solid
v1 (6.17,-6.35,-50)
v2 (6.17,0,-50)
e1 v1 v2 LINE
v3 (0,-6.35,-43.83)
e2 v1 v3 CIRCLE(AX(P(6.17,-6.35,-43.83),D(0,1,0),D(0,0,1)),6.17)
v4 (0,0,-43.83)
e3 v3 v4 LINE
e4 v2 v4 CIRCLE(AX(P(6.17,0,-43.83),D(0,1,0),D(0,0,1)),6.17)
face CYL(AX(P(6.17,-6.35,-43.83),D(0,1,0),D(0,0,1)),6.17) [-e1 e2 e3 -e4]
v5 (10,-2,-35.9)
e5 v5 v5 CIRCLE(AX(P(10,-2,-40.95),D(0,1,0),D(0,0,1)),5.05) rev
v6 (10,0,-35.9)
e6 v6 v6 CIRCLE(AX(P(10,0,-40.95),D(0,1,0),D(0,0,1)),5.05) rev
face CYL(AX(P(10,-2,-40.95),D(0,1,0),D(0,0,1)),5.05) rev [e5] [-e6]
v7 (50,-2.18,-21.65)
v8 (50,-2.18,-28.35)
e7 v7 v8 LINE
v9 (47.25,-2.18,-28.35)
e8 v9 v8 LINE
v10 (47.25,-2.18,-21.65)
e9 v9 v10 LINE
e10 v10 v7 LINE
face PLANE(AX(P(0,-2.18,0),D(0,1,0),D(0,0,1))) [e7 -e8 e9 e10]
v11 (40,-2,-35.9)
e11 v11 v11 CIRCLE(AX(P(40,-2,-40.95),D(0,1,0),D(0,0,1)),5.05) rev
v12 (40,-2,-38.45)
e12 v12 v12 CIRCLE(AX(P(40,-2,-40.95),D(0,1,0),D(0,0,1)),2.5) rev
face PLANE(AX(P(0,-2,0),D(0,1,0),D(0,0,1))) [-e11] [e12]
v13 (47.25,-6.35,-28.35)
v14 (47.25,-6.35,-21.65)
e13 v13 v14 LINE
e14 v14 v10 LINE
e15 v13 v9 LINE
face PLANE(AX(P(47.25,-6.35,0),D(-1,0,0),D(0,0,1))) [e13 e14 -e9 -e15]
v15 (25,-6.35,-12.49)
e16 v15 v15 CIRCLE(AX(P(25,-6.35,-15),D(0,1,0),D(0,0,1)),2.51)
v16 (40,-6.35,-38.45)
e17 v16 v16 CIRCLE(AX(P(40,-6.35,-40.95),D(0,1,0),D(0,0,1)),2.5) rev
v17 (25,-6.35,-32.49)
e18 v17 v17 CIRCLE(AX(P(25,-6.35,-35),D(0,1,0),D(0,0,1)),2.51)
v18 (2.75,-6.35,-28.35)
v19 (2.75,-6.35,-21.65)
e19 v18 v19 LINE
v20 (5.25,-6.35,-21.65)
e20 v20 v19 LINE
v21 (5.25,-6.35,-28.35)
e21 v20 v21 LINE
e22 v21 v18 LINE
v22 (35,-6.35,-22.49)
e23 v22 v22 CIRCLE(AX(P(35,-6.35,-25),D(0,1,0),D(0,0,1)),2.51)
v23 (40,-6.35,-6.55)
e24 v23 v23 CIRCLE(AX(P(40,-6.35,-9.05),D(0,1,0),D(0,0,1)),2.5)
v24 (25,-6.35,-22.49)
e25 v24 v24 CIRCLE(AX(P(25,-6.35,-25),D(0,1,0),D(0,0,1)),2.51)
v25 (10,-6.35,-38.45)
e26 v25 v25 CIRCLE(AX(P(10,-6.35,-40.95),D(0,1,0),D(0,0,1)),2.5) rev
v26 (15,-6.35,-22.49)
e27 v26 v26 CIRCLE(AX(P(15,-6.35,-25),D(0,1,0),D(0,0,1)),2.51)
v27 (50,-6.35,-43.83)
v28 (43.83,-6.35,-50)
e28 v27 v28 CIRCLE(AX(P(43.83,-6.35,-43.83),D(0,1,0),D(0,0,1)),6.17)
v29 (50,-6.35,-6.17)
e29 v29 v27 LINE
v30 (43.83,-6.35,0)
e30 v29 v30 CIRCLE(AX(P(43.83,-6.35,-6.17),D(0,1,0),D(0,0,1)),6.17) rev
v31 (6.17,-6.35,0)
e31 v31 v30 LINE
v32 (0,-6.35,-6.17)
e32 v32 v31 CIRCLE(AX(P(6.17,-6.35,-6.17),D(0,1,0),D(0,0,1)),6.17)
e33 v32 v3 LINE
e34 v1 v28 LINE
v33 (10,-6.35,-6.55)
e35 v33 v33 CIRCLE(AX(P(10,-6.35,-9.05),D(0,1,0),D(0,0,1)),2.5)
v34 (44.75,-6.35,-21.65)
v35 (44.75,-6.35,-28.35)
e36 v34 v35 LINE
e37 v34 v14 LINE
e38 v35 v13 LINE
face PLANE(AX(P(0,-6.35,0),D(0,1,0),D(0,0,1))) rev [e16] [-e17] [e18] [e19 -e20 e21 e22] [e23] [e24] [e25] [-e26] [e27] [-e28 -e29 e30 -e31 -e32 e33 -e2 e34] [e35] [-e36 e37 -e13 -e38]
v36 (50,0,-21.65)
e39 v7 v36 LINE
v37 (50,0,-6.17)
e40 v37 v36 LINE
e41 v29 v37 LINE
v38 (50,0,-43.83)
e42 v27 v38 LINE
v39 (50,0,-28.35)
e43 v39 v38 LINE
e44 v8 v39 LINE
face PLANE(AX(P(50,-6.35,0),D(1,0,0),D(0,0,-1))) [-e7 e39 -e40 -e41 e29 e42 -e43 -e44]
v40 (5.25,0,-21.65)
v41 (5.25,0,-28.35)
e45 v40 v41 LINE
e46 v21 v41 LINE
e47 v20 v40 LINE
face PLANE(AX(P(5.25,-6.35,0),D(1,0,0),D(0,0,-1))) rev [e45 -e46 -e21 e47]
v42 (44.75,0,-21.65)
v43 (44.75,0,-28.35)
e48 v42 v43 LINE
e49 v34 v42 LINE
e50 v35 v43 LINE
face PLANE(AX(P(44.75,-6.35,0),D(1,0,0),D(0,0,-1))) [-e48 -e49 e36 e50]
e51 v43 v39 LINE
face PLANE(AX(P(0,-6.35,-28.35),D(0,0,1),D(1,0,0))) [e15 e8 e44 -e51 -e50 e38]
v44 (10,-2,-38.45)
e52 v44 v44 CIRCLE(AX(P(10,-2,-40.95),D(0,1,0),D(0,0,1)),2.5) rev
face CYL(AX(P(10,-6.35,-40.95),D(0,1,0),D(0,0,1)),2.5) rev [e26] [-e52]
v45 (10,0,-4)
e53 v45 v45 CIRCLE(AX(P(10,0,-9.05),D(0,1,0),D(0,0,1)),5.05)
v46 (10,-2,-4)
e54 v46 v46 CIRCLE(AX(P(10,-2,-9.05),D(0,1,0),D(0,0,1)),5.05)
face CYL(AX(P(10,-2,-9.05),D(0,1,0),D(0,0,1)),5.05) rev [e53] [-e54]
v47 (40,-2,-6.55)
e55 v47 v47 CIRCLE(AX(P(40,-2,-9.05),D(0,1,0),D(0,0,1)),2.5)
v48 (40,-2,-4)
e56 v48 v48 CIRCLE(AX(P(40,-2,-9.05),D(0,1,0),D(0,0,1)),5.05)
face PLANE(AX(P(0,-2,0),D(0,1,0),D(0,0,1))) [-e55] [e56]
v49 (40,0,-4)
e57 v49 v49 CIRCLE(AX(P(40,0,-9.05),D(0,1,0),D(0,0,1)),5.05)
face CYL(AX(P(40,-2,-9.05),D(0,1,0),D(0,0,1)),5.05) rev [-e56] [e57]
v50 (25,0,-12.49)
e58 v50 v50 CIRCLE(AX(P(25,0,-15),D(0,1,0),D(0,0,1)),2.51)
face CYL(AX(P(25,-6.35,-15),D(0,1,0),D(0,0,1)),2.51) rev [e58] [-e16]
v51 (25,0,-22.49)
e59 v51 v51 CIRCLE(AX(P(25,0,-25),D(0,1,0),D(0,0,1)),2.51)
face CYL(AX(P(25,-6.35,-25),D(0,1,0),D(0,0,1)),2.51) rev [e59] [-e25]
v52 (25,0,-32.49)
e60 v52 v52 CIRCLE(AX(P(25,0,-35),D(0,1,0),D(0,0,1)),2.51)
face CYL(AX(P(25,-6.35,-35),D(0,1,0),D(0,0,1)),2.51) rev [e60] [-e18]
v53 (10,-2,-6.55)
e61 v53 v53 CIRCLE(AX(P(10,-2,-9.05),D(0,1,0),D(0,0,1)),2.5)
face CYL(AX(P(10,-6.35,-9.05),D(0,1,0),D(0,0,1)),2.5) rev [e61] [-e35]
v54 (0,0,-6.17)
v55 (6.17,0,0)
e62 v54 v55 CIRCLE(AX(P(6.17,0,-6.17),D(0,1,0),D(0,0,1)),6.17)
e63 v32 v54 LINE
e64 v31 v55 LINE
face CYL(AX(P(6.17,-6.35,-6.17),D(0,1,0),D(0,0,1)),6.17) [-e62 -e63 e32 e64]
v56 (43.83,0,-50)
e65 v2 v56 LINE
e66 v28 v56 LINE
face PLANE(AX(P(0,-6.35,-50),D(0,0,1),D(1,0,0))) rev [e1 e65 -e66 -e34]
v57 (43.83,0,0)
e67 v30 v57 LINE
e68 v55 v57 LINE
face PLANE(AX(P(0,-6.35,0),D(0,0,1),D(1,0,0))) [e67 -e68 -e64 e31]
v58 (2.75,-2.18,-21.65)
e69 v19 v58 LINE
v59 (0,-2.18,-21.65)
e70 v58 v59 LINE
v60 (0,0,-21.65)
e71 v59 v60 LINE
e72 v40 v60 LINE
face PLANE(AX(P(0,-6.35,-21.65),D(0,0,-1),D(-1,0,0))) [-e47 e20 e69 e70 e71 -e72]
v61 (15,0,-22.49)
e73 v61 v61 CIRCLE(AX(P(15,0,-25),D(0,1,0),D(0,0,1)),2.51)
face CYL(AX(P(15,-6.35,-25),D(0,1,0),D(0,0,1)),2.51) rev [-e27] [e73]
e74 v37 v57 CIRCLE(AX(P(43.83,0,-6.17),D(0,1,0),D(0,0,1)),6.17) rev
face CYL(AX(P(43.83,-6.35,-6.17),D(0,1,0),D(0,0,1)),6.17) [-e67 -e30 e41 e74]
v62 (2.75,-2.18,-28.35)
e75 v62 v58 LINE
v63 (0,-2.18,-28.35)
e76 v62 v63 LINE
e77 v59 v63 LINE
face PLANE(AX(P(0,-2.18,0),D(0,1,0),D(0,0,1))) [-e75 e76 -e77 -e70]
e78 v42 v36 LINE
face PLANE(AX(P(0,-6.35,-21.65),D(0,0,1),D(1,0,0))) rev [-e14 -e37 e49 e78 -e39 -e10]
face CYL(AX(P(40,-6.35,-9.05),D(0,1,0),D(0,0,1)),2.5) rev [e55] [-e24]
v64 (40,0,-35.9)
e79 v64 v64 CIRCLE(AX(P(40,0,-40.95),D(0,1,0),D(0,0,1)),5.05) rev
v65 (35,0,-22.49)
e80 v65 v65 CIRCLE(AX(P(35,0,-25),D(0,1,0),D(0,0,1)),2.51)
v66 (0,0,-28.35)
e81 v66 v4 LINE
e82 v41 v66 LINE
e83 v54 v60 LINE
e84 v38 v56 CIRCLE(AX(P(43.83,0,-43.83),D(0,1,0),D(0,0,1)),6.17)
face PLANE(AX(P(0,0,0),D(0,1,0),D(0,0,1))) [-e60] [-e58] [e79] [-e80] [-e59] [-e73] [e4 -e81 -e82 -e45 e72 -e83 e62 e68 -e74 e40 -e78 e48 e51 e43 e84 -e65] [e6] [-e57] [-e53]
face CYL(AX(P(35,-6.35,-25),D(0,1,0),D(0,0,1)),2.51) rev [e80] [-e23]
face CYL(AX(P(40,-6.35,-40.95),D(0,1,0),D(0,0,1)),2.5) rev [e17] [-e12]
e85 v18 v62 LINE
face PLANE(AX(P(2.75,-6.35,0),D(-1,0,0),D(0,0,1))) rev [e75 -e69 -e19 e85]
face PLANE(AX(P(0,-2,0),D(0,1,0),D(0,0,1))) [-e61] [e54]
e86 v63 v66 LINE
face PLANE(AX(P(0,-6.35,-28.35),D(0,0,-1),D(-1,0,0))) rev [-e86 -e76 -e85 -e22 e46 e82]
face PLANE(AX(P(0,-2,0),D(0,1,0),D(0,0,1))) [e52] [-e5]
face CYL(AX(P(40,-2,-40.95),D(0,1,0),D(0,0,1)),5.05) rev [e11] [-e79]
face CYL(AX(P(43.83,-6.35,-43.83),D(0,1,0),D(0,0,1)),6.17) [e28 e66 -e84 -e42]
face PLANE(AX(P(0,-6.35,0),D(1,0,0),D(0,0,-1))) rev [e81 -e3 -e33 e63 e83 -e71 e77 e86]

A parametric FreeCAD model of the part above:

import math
import FreeCAD as App
import Part
import Sketcher

V = App.Vector
Q = App.Units.Quantity


def add_polygon(sketch, points):
    """Adds a closed chain of lines whose ends are joined by coincident constraints."""
    first, n = sketch.GeometryCount, len(points)
    for a, b in zip(points, points[1:] + points[:1]):
        sketch.addGeometry(Part.LineSegment(App.Vector(*a, 0), App.Vector(*b, 0)), False)
    for i in range(n):
        sketch.addConstraint(Sketcher.Constraint("Coincident", first + i, 2, first + (i + 1) % n, 1))

doc = App.newDocument("Part")
body = doc.addObject("PartDesign::Body", "Body")

# Sketch on XZ plane
sketch1 = body.newObject("Sketcher::SketchObject", "Sketch")
sketch1.AttachmentSupport = (doc.getObject("XZ_Plane"), [""])
sketch1.MapMode = "FlatFace"
sketch1.addGeometry(Part.ArcOfCircle(Part.Circle(V(6.17, -6.17, 0), V(0, 0, 1), 6.17), math.radians(90), math.radians(180)), False)  # 0
sketch1.addGeometry(Part.LineSegment(V(6.17, 0, 0), V(43.83, 0, 0)), False)  # 1
sketch1.addGeometry(Part.ArcOfCircle(Part.Circle(V(43.83, -6.17, 0), V(0, 0, 1), 6.17), math.radians(0), math.radians(90)), False)  # 2
sketch1.addGeometry(Part.LineSegment(V(50, -6.17, 0), V(50, -43.83, 0)), False)  # 3
sketch1.addGeometry(Part.ArcOfCircle(Part.Circle(V(43.83, -43.83, 0), V(0, 0, 1), 6.17), math.radians(-90), math.radians(0)), False)  # 4
sketch1.addGeometry(Part.LineSegment(V(43.83, -50, 0), V(6.17, -50, 0)), False)  # 5
sketch1.addGeometry(Part.ArcOfCircle(Part.Circle(V(6.17, -43.83, 0), V(0, 0, 1), 6.17), math.radians(180), math.radians(270)), False)  # 6
sketch1.addGeometry(Part.LineSegment(V(0, -43.83, 0), V(0, -6.17, 0)), False)  # 7
add_polygon(sketch1, [(5.25, -21.65), (2.75, -21.65), (2.75, -28.35), (5.25, -28.35)])  # lines 8-11
add_polygon(sketch1, [(47.25, -21.65), (44.75, -21.65), (44.75, -28.35), (47.25, -28.35)])  # lines 12-15
sketch1.addGeometry(Part.Circle(V(25, -15, 0), V(0, 0, 1), 2.51), False)  # 16
sketch1.addGeometry(Part.Circle(V(15, -25, 0), V(0, 0, 1), 2.51), False)  # 17
sketch1.addGeometry(Part.Circle(V(25, -25, 0), V(0, 0, 1), 2.51), False)  # 18
sketch1.addGeometry(Part.Circle(V(35, -25, 0), V(0, 0, 1), 2.51), False)  # 19
sketch1.addGeometry(Part.Circle(V(25, -35, 0), V(0, 0, 1), 2.51), False)  # 20
sketch1.addGeometry(Part.Circle(V(10, -9.05, 0), V(0, 0, 1), 2.5), False)  # 21
sketch1.addGeometry(Part.Circle(V(40, -9.05, 0), V(0, 0, 1), 2.5), False)  # 22
sketch1.addGeometry(Part.Circle(V(10, -40.95, 0), V(0, 0, 1), 2.5), False)  # 23
sketch1.addGeometry(Part.Circle(V(40, -40.95, 0), V(0, 0, 1), 2.5), False)  # 24
sketch1.addConstraint([
    Sketcher.Constraint("Tangent", 0, 1, 1, 1),
    Sketcher.Constraint("Tangent", 1, 2, 2, 2),
    Sketcher.Constraint("Tangent", 2, 1, 3, 1),
    Sketcher.Constraint("Tangent", 3, 2, 4, 2),
    Sketcher.Constraint("Tangent", 4, 1, 5, 1),
    Sketcher.Constraint("Tangent", 5, 2, 6, 2),
    Sketcher.Constraint("Tangent", 6, 1, 7, 1),
    Sketcher.Constraint("Tangent", 7, 2, 0, 2),
    Sketcher.Constraint("Horizontal", 1),
    Sketcher.Constraint("Vertical", 3),
    Sketcher.Constraint("Horizontal", 5),
    Sketcher.Constraint("Vertical", 7),
    Sketcher.Constraint("Horizontal", 8),
    Sketcher.Constraint("Vertical", 9),
    Sketcher.Constraint("Horizontal", 10),
    Sketcher.Constraint("Vertical", 11),
    Sketcher.Constraint("Horizontal", 12),
    Sketcher.Constraint("Vertical", 13),
    Sketcher.Constraint("Horizontal", 14),
    Sketcher.Constraint("Vertical", 15),
    Sketcher.Constraint("Equal", 0, 2),
    Sketcher.Constraint("Equal", 2, 4),
    Sketcher.Constraint("Equal", 4, 6),
    Sketcher.Constraint("Equal", 16, 17),
    Sketcher.Constraint("Equal", 17, 18),
    Sketcher.Constraint("Equal", 18, 19),
    Sketcher.Constraint("Equal", 19, 20),
    Sketcher.Constraint("Equal", 21, 22),
    Sketcher.Constraint("Equal", 22, 23),
    Sketcher.Constraint("Equal", 23, 24),
    Sketcher.Constraint("PointOnObject", 0, 1, -1),
    Sketcher.Constraint("PointOnObject", 6, 1, -2),
    Sketcher.Constraint("Horizontal", 17, 3, 18, 3),
    Sketcher.Constraint("Horizontal", 18, 3, 19, 3),
    Sketcher.Constraint("Horizontal", 21, 3, 22, 3),
    Sketcher.Constraint("Horizontal", 23, 3, 24, 3),
    Sketcher.Constraint("Horizontal", 11, 2, 12, 2),
    Sketcher.Constraint("Horizontal", 10, 2, 13, 2),
    Sketcher.Constraint("Vertical", 16, 3, 18, 3),
    Sketcher.Constraint("Vertical", 18, 3, 20, 3),
    Sketcher.Constraint("Vertical", 21, 3, 23, 3),
    Sketcher.Constraint("Vertical", 22, 3, 24, 3),
    Sketcher.Constraint("Equal", 10, 12),
    Sketcher.Constraint("Equal", 5, 3),
    Sketcher.Constraint("Diameter", 21, Q("5 mm")),
    Sketcher.Constraint("Diameter", 16, Q("5.02 mm")),
    Sketcher.Constraint("Radius", 0, Q("6.17 mm")),
    Sketcher.Constraint("DistanceX", 8, 2, 8, 1, Q("2.5 mm")),
    Sketcher.Constraint("DistanceY", 9, 2, 9, 1, Q("6.7 mm")),
    Sketcher.Constraint("DistanceX", -1, 1, 16, 3, Q("25 mm")),
    Sketcher.Constraint("DistanceY", 16, 3, -1, 1, Q("15 mm")),
    Sketcher.Constraint("DistanceX", -1, 1, 17, 3, Q("15 mm")),
    Sketcher.Constraint("DistanceY", 17, 3, -1, 1, Q("25 mm")),
    Sketcher.Constraint("DistanceX", -1, 1, 19, 3, Q("35 mm")),
    Sketcher.Constraint("DistanceY", 20, 3, -1, 1, Q("35 mm")),
    Sketcher.Constraint("DistanceX", -1, 1, 21, 3, Q("10 mm")),
    Sketcher.Constraint("DistanceX", -1, 1, 22, 3, Q("40 mm")),
    Sketcher.Constraint("DistanceX", -1, 1, 2, 1, Q("50 mm")),
    Sketcher.Constraint("DistanceY", 8, 2, 21, 3, Q("12.6 mm")),
    Sketcher.Constraint("DistanceY", 23, 3, 8, 2, Q("19.3 mm")),
    Sketcher.Constraint("DistanceY", 21, 3, -1, 1, Q("9.05 mm")),
    Sketcher.Constraint("DistanceX", -1, 1, 8, 2, Q("2.75 mm")),
    Sketcher.Constraint("DistanceX", -1, 1, 12, 2, Q("44.75 mm")),
])
pad1 = body.newObject("PartDesign::Pad", "Pad")
pad1.Profile = sketch1
pad1.Length = 6.35

# Sketch on XZ plane
sketch2 = body.newObject("Sketcher::SketchObject", "Sketch001")
sketch2.AttachmentSupport = (doc.getObject("XZ_Plane"), [""])
sketch2.MapMode = "FlatFace"
add_polygon(sketch2, [(0, -28.35), (0, -21.65), (2.75, -21.65), (2.75, -28.35)])  # lines 0-3
add_polygon(sketch2, [(47.25, -28.35), (47.25, -21.65), (50, -21.65), (50, -28.35)])  # lines 4-7
sketch2.addConstraint([
    Sketcher.Constraint("Vertical", 0),
    Sketcher.Constraint("Horizontal", 1),
    Sketcher.Constraint("Vertical", 2),
    Sketcher.Constraint("Horizontal", 3),
    Sketcher.Constraint("Vertical", 4),
    Sketcher.Constraint("Horizontal", 5),
    Sketcher.Constraint("Vertical", 6),
    Sketcher.Constraint("Horizontal", 7),
    Sketcher.Constraint("PointOnObject", 0, 2, -2),
    Sketcher.Constraint("Horizontal", 1, 2, 4, 2),
    Sketcher.Constraint("Horizontal", 3, 2, 6, 2),
    Sketcher.Constraint("Equal", 3, 5),
    Sketcher.Constraint("DistanceY", 0, 1, 0, 2, Q("6.7 mm")),
    Sketcher.Constraint("DistanceX", -1, 1, 5, 2, Q("50 mm")),
    Sketcher.Constraint("DistanceX", 1, 1, 1, 2, Q("2.75 mm")),
    Sketcher.Constraint("DistanceY", 0, 2, -1, 1, Q("21.65 mm")),
])
pocket1 = body.newObject("PartDesign::Pocket", "Pocket")
pocket1.Profile = sketch2
pocket1.Length = 2.18
pocket1.Reversed = True

# Sketch on XZ plane
sketch3 = body.newObject("Sketcher::SketchObject", "Sketch002")
sketch3.AttachmentSupport = (doc.getObject("XZ_Plane"), [""])
sketch3.MapMode = "FlatFace"
sketch3.addGeometry([
    Part.Circle(V(10, -40.95, 0), V(0, 0, 1), 5.05),  # 0
    Part.Circle(V(10, -40.95, 0), V(0, 0, 1), 2.5),  # 1
    Part.Circle(V(40, -40.95, 0), V(0, 0, 1), 5.05),  # 2
    Part.Circle(V(40, -40.95, 0), V(0, 0, 1), 2.5),  # 3
    Part.Circle(V(40, -9.05, 0), V(0, 0, 1), 5.05),  # 4
    Part.Circle(V(40, -9.05, 0), V(0, 0, 1), 2.5),  # 5
    Part.Circle(V(10, -9.05, 0), V(0, 0, 1), 5.05),  # 6
    Part.Circle(V(10, -9.05, 0), V(0, 0, 1), 2.5),  # 7
], False)
sketch3.addConstraint([
    Sketcher.Constraint("Coincident", 1, 3, 0, 3),
    Sketcher.Constraint("Coincident", 3, 3, 2, 3),
    Sketcher.Constraint("Coincident", 5, 3, 4, 3),
    Sketcher.Constraint("Coincident", 7, 3, 6, 3),
    Sketcher.Constraint("Equal", 0, 2),
    Sketcher.Constraint("Equal", 1, 3),
    Sketcher.Constraint("Equal", 2, 4),
    Sketcher.Constraint("Equal", 3, 5),
    Sketcher.Constraint("Equal", 4, 6),
    Sketcher.Constraint("Equal", 5, 7),
    Sketcher.Constraint("Horizontal", 1, 3, 2, 3),
    Sketcher.Constraint("Horizontal", 5, 3, 6, 3),
    Sketcher.Constraint("Vertical", 3, 3, 4, 3),
    Sketcher.Constraint("Vertical", 1, 3, 6, 3),
    Sketcher.Constraint("Diameter", 1, Q("5 mm")),
    Sketcher.Constraint("Diameter", 0, Q("10.1 mm")),
    Sketcher.Constraint("DistanceX", -1, 1, 0, 3, Q("10 mm")),
    Sketcher.Constraint("DistanceX", -1, 1, 2, 3, Q("40 mm")),
    Sketcher.Constraint("DistanceY", 2, 3, 4, 3, Q("31.9 mm")),
    Sketcher.Constraint("DistanceY", 0, 3, -1, 1, Q("40.95 mm")),
])
pocket2 = body.newObject("PartDesign::Pocket", "Pocket001")
pocket2.Profile = sketch3
pocket2.Length = 2
pocket2.Reversed = True

doc.recompute()
